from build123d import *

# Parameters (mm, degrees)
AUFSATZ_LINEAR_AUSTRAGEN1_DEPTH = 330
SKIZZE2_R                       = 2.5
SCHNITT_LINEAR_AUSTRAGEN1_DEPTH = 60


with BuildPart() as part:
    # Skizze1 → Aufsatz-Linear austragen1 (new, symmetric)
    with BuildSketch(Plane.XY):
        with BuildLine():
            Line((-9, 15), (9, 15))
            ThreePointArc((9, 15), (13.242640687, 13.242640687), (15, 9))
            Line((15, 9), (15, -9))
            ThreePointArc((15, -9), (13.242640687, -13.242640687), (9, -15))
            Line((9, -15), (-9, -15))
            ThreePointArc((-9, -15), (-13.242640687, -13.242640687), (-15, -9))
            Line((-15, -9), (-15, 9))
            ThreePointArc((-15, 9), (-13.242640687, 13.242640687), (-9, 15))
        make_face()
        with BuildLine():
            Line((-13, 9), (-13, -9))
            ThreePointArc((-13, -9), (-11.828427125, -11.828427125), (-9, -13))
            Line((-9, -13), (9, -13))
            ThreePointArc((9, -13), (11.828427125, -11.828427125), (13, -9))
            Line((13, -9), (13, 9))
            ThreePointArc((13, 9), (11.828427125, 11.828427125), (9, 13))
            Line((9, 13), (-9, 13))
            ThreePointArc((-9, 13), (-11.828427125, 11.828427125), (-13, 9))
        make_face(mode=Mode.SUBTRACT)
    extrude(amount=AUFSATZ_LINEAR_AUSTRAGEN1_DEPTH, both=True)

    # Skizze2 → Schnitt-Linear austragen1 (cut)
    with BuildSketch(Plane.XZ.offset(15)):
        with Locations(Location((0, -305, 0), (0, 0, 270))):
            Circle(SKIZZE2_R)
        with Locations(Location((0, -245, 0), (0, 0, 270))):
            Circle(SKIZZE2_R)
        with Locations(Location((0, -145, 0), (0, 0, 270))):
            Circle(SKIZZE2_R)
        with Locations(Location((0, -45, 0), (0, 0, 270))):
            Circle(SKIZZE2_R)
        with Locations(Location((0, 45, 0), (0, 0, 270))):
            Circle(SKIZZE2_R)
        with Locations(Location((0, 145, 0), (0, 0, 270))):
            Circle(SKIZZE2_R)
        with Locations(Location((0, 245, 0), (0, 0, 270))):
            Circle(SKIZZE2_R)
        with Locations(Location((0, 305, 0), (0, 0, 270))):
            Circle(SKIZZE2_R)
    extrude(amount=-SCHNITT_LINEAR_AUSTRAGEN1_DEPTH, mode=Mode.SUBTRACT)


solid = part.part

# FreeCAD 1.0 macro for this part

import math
import FreeCAD as App
import Part
import Sketcher
from FreeCAD import Vector
Q = App.Units.Quantity

doc = App.newDocument("Part")
params = doc.addObject("Spreadsheet::Sheet", "Params")
for row, (alias, value) in enumerate([
    ("sketch1_radius", "6 mm"),
    ("sketch1_radius2", "4 mm"),
    ("sketch1_width", "18 mm"),
    ("pad1_length", "660 mm"),
    ("sketch2_diameter", "5 mm"),
    ("pocket1_length", "60 mm"),
], start=1):
    params.set(f"A{row}", alias)
    params.set(f"B{row}", "=" + value)
    params.setAlias(f"B{row}", alias)

body = doc.addObject("PartDesign::Body", "Body")

# Sketch on XY plane
sketch1 = body.newObject("Sketcher::SketchObject", "Sketch")
sketch1.AttachmentSupport = (doc.getObject("XY_Plane"), [""])
sketch1.MapMode = "FlatFace"
sketch1.addGeometry(Part.LineSegment(Vector(9, 15, 0), Vector(-9, 15, 0)), False)
sketch1.addGeometry(Part.ArcOfCircle(Part.Circle(Vector(-9, 9, 0), Vector(0, 0, 1), 6), math.radians(90), math.radians(180)), False)
sketch1.addGeometry(Part.LineSegment(Vector(-15, 9, 0), Vector(-15, -9, 0)), False)
sketch1.addGeometry(Part.ArcOfCircle(Part.Circle(Vector(-9, -9, 0), Vector(0, 0, 1), 6), math.radians(180), math.radians(270)), False)
sketch1.addGeometry(Part.LineSegment(Vector(-9, -15, 0), Vector(9, -15, 0)), False)
sketch1.addGeometry(Part.ArcOfCircle(Part.Circle(Vector(9, -9, 0), Vector(0, 0, 1), 6), math.radians(-90), math.radians(0)), False)
sketch1.addGeometry(Part.LineSegment(Vector(15, -9, 0), Vector(15, 9, 0)), False)
sketch1.addGeometry(Part.ArcOfCircle(Part.Circle(Vector(9, 9, 0), Vector(0, 0, 1), 6), math.radians(0), math.radians(90)), False)
sketch1.addGeometry(Part.ArcOfCircle(Part.Circle(Vector(-9, 9, 0), Vector(0, 0, 1), 4), math.radians(90), math.radians(180)), False)
sketch1.addGeometry(Part.LineSegment(Vector(-9, 13, 0), Vector(9, 13, 0)), False)
sketch1.addGeometry(Part.ArcOfCircle(Part.Circle(Vector(9, 9, 0), Vector(0, 0, 1), 4), math.radians(0), math.radians(90)), False)
sketch1.addGeometry(Part.LineSegment(Vector(13, 9, 0), Vector(13, -9, 0)), False)
sketch1.addGeometry(Part.ArcOfCircle(Part.Circle(Vector(9, -9, 0), Vector(0, 0, 1), 4), math.radians(-90), math.radians(0)), False)
sketch1.addGeometry(Part.LineSegment(Vector(9, -13, 0), Vector(-9, -13, 0)), False)
sketch1.addGeometry(Part.ArcOfCircle(Part.Circle(Vector(-9, -9, 0), Vector(0, 0, 1), 4), math.radians(180), math.radians(270)), False)
sketch1.addGeometry(Part.LineSegment(Vector(-13, -9, 0), Vector(-13, 9, 0)), False)
sketch1.addConstraint(Sketcher.Constraint("Tangent", 0, 2, 1, 1))
sketch1.addConstraint(Sketcher.Constraint("Tangent", 1, 2, 2, 1))
sketch1.addConstraint(Sketcher.Constraint("Tangent", 2, 2, 3, 1))
sketch1.addConstraint(Sketcher.Constraint("Tangent", 3, 2, 4, 1))
sketch1.addConstraint(Sketcher.Constraint("Tangent", 4, 2, 5, 1))
sketch1.addConstraint(Sketcher.Constraint("Tangent", 5, 2, 6, 1))
sketch1.addConstraint(Sketcher.Constraint("Tangent", 6, 2, 7, 1))
sketch1.addConstraint(Sketcher.Constraint("Tangent", 7, 2, 0, 1))
sketch1.addConstraint(Sketcher.Constraint("Tangent", 8, 1, 9, 1))
sketch1.addConstraint(Sketcher.Constraint("Tangent", 9, 2, 10, 2))
sketch1.addConstraint(Sketcher.Constraint("Tangent", 10, 1, 11, 1))
sketch1.addConstraint(Sketcher.Constraint("Tangent", 11, 2, 12, 2))
sketch1.addConstraint(Sketcher.Constraint("Tangent", 12, 1, 13, 1))
sketch1.addConstraint(Sketcher.Constraint("Tangent", 13, 2, 14, 2))
sketch1.addConstraint(Sketcher.Constraint("Tangent", 14, 1, 15, 1))
sketch1.addConstraint(Sketcher.Constraint("Tangent", 15, 2, 8, 2))
sketch1.addConstraint(Sketcher.Constraint("Horizontal", 0))
sketch1.addConstraint(Sketcher.Constraint("Vertical", 2))
sketch1.addConstraint(Sketcher.Constraint("Horizontal", 4))
sketch1.addConstraint(Sketcher.Constraint("Vertical", 6))
sketch1.addConstraint(Sketcher.Constraint("Horizontal", 9))
sketch1.addConstraint(Sketcher.Constraint("Vertical", 11))
sketch1.addConstraint(Sketcher.Constraint("Horizontal", 13))
sketch1.addConstraint(Sketcher.Constraint("Vertical", 15))
sketch1.addConstraint(Sketcher.Constraint("Coincident", 8, 3, 1, 3))
sketch1.addConstraint(Sketcher.Constraint("Coincident", 10, 3, 7, 3))
sketch1.addConstraint(Sketcher.Constraint("Coincident", 12, 3, 5, 3))
sketch1.addConstraint(Sketcher.Constraint("Equal", 1, 3))
sketch1.addConstraint(Sketcher.Constraint("Equal", 3, 5))
sketch1.addConstraint(Sketcher.Constraint("Equal", 5, 7))
sketch1.addConstraint(Sketcher.Constraint("Equal", 12, 14))
sketch1.addConstraint(Sketcher.Constraint("Symmetric", 1, 3, 5, 3, -1, 1))
sketch1.addConstraint(Sketcher.Constraint("Equal", 13, 2))
sketch1.addConstraint(Sketcher.Constraint("Radius", 1, Q("6 mm")))
sketch1.addConstraint(Sketcher.Constraint("Radius", 8, Q("4 mm")))
sketch1.addConstraint(Sketcher.Constraint("DistanceX", 0, 2, 0, 1, Q("18 mm")))
sketch1.setExpression("Constraints[33]", "Params.sketch1_radius")
sketch1.setExpression("Constraints[34]", "Params.sketch1_radius2")
sketch1.setExpression("Constraints[35]", "Params.sketch1_width")
pad1 = body.newObject("PartDesign::Pad", "Pad")
pad1.Profile = sketch1
pad1.setExpression("Length", "Params.pad1_length")
pad1.Midplane = True

# Sketch on XZ plane
sketch2 = body.newObject("Sketcher::SketchObject", "Sketch001")
sketch2.AttachmentSupport = (doc.getObject("XZ_Plane"), [""])
sketch2.MapMode = "FlatFace"
sketch2.AttachmentOffset = App.Placement(Vector(0, 0, 15), App.Rotation())
sketch2.addGeometry(Part.Circle(Vector(0, -305, 0), Vector(0, 0, 1), 2.5), False)
sketch2.addGeometry(Part.Circle(Vector(0, -245, 0), Vector(0, 0, 1), 2.5), False)
sketch2.addGeometry(Part.Circle(Vector(0, -145, 0), Vector(0, 0, 1), 2.5), False)
sketch2.addGeometry(Part.Circle(Vector(0, -45, 0), Vector(0, 0, 1), 2.5), False)
sketch2.addGeometry(Part.Circle(Vector(0, 45, 0), Vector(0, 0, 1), 2.5), False)
sketch2.addGeometry(Part.Circle(Vector(0, 145, 0), Vector(0, 0, 1), 2.5), False)
sketch2.addGeometry(Part.Circle(Vector(0, 245, 0), Vector(0, 0, 1), 2.5), False)
sketch2.addGeometry(Part.Circle(Vector(0, 305, 0), Vector(0, 0, 1), 2.5), False)
sketch2.addConstraint(Sketcher.Constraint("Equal", 0, 1))
sketch2.addConstraint(Sketcher.Constraint("Equal", 1, 2))
sketch2.addConstraint(Sketcher.Constraint("Equal", 2, 3))
sketch2.addConstraint(Sketcher.Constraint("Equal", 3, 4))
sketch2.addConstraint(Sketcher.Constraint("Equal", 4, 5))
sketch2.addConstraint(Sketcher.Constraint("Equal", 5, 6))
sketch2.addConstraint(Sketcher.Constraint("Equal", 6, 7))
sketch2.addConstraint(Sketcher.Constraint("Symmetric", 3, 3, 4, 3, -1, 1))
sketch2.addConstraint(Sketcher.Constraint("Symmetric", 2, 3, 5, 3, -1, 1))
sketch2.addConstraint(Sketcher.Constraint("Symmetric", 1, 3, 6, 3, -1, 1))
sketch2.addConstraint(Sketcher.Constraint("Symmetric", 0, 3, 7, 3, -1, 1))
sketch2.addConstraint(Sketcher.Constraint("PointOnObject", 0, 3, -2))
sketch2.addConstraint(Sketcher.Constraint("PointOnObject", 1, 3, -2))
sketch2.addConstraint(Sketcher.Constraint("PointOnObject", 2, 3, -2))
sketch2.addConstraint(Sketcher.Constraint("PointOnObject", 3, 3, -2))
sketch2.addConstraint(Sketcher.Constraint("Diameter", 0, Q("5 mm")))
sketch2.addConstraint(Sketcher.Constraint("DistanceY", 0, 3, -1, 1, Q("305 mm")))
sketch2.addConstraint(Sketcher.Constraint("DistanceY", 1, 3, -1, 1, Q("245 mm")))
sketch2.addConstraint(Sketcher.Constraint("DistanceY", 2, 3, -1, 1, Q("145 mm")))
sketch2.addConstraint(Sketcher.Constraint("DistanceY", 3, 3, -1, 1, Q("45 mm")))
sketch2.setExpression("Constraints[15]", "Params.sketch2_diameter")
pocket1 = body.newObject("PartDesign::Pocket", "Pocket")
pocket1.Profile = sketch2
pocket1.setExpression("Length", "Params.pocket1_length")

doc.recompute()
